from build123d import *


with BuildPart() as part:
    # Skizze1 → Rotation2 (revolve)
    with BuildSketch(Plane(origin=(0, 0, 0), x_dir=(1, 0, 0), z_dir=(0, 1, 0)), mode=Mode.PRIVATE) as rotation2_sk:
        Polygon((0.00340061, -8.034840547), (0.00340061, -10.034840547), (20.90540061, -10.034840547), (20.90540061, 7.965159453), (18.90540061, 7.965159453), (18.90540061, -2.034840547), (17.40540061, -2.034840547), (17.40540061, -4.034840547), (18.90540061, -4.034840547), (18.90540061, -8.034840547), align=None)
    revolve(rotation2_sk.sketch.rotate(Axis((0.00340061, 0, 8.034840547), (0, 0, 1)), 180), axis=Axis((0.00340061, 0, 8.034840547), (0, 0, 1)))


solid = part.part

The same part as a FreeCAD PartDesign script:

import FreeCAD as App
import Part
import Sketcher

doc = App.newDocument("Part")
body = doc.addObject("PartDesign::Body", "Body")

# Sketch on XZ plane
sketch1 = doc.addObject("Sketcher::SketchObject", "Sketch")
body.addObject(sketch1)
sketch1.AttachmentSupport = (doc.XZ_Plane, [""])
sketch1.MapMode = "FlatFace"
sketch1.addGeometry([
    Part.LineSegment(App.Vector(0, 8, 0), App.Vector(0, 10, 0)),  # 0
    Part.LineSegment(App.Vector(0, 10, 0), App.Vector(20.9, 10, 0)),  # 1
    Part.LineSegment(App.Vector(20.9, 10, 0), App.Vector(20.9, -8, 0)),  # 2
    Part.LineSegment(App.Vector(20.9, -8, 0), App.Vector(18.9, -8, 0)),  # 3
    Part.LineSegment(App.Vector(18.9, -8, 0), App.Vector(18.9, 2, 0)),  # 4
    Part.LineSegment(App.Vector(18.9, 2, 0), App.Vector(17.4, 2, 0)),  # 5
    Part.LineSegment(App.Vector(17.4, 2, 0), App.Vector(17.4, 4, 0)),  # 6
    Part.LineSegment(App.Vector(17.4, 4, 0), App.Vector(18.9, 4, 0)),  # 7
    Part.LineSegment(App.Vector(18.9, 4, 0), App.Vector(18.9, 8, 0)),  # 8
    Part.LineSegment(App.Vector(18.9, 8, 0), App.Vector(0, 8, 0)),  # 9
], False)
sketch1.addGeometry(Part.LineSegment(App.Vector(0, -8, 0), App.Vector(0, 10, 0)), True)  # axis
sketch1.addConstraint([
    Sketcher.Constraint("Coincident", 0, 2, 1, 1),
    Sketcher.Constraint("Coincident", 1, 2, 2, 1),
    Sketcher.Constraint("Coincident", 2, 2, 3, 1),
    Sketcher.Constraint("Coincident", 3, 2, 4, 1),
    Sketcher.Constraint("Coincident", 4, 2, 5, 1),
    Sketcher.Constraint("Coincident", 5, 2, 6, 1),
    Sketcher.Constraint("Coincident", 6, 2, 7, 1),
    Sketcher.Constraint("Coincident", 7, 2, 8, 1),
    Sketcher.Constraint("Coincident", 8, 2, 9, 1),
    Sketcher.Constraint("Coincident", 9, 2, 0, 1),
    Sketcher.Constraint("Vertical", 0),
    Sketcher.Constraint("Horizontal", 1),
    Sketcher.Constraint("Vertical", 2),
    Sketcher.Constraint("Horizontal", 3),
    Sketcher.Constraint("Vertical", 4),
    Sketcher.Constraint("Horizontal", 5),
    Sketcher.Constraint("Vertical", 6),
    Sketcher.Constraint("Horizontal", 7),
    Sketcher.Constraint("Vertical", 8),
    Sketcher.Constraint("Horizontal", 9),
    Sketcher.Constraint("Vertical", 10),
    Sketcher.Constraint("Coincident", 10, 2, 0, 2),
    Sketcher.Constraint("Horizontal", 3, 2, 10, 1),
    Sketcher.Constraint("Vertical", 4, 2, 7, 2),
    Sketcher.Constraint("Equal", 3, 0),
    Sketcher.Constraint("Equal", 0, 6),
    Sketcher.Constraint("DistanceX", 3, 2, 3, 1, 2.0),
    Sketcher.Constraint("DistanceY", 2, 2, 2, 1, 18.0),
    Sketcher.Constraint("DistanceY", 4, 1, 4, 2, 10.0),
    Sketcher.Constraint("DistanceX", 5, 2, 5, 1, 1.5),
    Sketcher.Constraint("DistanceX", 1, 1, 1, 2, 20.902),
    Sketcher.Constraint("DistanceX", -1, 1, 0, 2, 0.003401),
    Sketcher.Constraint("DistanceY", -1, 1, 0, 2, 10.034841),
])
revolution = doc.addObject("PartDesign::Revolution", "Revolution")
body.addObject(revolution)
revolution.Profile = sketch1
revolution.ReferenceAxis = (sketch1, ["Axis0"])
revolution.Angle = 360

doc.recompute()
